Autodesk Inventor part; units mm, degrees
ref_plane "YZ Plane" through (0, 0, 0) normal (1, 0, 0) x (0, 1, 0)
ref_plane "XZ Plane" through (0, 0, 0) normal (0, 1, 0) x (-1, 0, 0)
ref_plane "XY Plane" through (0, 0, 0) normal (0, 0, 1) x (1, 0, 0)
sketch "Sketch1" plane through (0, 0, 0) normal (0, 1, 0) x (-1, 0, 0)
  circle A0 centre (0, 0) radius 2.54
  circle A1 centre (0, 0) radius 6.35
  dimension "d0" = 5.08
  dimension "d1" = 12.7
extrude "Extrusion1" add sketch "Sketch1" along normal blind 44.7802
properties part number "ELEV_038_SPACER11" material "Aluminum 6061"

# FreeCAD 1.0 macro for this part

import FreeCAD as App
import Part
import Sketcher
Q = App.Units.Quantity

doc = App.newDocument("Part")
body = doc.addObject("PartDesign::Body", "Body")

sketch1 = doc.addObject("Sketcher::SketchObject", "Sketch")
body.addObject(sketch1)
sketch1.AttachmentSupport = (doc.XZ_Plane, [""])
sketch1.MapMode = "FlatFace"
sketch1.addGeometry([
    Part.Circle(App.Vector(0, 0, 0), App.Vector(0, 0, 1), 6.3),
    Part.Circle(App.Vector(0, 0, 0), App.Vector(0, 0, 1), 2.5),
], False)
sketch1.addConstraint([
    Sketcher.Constraint("Coincident", 0, 3, -1, 1),
    Sketcher.Constraint("Coincident", 1, 3, -1, 1),
    Sketcher.Constraint("Diameter", 0, Q("0.5 in")),
    Sketcher.Constraint("Diameter", 1, Q("0.2 in")),
])
pad1 = doc.addObject("PartDesign::Pad", "Pad")
body.addObject(pad1)
pad1.Profile = sketch1
pad1.Length = Q("1.763 in")
pad1.Reversed = True

doc.recompute()
